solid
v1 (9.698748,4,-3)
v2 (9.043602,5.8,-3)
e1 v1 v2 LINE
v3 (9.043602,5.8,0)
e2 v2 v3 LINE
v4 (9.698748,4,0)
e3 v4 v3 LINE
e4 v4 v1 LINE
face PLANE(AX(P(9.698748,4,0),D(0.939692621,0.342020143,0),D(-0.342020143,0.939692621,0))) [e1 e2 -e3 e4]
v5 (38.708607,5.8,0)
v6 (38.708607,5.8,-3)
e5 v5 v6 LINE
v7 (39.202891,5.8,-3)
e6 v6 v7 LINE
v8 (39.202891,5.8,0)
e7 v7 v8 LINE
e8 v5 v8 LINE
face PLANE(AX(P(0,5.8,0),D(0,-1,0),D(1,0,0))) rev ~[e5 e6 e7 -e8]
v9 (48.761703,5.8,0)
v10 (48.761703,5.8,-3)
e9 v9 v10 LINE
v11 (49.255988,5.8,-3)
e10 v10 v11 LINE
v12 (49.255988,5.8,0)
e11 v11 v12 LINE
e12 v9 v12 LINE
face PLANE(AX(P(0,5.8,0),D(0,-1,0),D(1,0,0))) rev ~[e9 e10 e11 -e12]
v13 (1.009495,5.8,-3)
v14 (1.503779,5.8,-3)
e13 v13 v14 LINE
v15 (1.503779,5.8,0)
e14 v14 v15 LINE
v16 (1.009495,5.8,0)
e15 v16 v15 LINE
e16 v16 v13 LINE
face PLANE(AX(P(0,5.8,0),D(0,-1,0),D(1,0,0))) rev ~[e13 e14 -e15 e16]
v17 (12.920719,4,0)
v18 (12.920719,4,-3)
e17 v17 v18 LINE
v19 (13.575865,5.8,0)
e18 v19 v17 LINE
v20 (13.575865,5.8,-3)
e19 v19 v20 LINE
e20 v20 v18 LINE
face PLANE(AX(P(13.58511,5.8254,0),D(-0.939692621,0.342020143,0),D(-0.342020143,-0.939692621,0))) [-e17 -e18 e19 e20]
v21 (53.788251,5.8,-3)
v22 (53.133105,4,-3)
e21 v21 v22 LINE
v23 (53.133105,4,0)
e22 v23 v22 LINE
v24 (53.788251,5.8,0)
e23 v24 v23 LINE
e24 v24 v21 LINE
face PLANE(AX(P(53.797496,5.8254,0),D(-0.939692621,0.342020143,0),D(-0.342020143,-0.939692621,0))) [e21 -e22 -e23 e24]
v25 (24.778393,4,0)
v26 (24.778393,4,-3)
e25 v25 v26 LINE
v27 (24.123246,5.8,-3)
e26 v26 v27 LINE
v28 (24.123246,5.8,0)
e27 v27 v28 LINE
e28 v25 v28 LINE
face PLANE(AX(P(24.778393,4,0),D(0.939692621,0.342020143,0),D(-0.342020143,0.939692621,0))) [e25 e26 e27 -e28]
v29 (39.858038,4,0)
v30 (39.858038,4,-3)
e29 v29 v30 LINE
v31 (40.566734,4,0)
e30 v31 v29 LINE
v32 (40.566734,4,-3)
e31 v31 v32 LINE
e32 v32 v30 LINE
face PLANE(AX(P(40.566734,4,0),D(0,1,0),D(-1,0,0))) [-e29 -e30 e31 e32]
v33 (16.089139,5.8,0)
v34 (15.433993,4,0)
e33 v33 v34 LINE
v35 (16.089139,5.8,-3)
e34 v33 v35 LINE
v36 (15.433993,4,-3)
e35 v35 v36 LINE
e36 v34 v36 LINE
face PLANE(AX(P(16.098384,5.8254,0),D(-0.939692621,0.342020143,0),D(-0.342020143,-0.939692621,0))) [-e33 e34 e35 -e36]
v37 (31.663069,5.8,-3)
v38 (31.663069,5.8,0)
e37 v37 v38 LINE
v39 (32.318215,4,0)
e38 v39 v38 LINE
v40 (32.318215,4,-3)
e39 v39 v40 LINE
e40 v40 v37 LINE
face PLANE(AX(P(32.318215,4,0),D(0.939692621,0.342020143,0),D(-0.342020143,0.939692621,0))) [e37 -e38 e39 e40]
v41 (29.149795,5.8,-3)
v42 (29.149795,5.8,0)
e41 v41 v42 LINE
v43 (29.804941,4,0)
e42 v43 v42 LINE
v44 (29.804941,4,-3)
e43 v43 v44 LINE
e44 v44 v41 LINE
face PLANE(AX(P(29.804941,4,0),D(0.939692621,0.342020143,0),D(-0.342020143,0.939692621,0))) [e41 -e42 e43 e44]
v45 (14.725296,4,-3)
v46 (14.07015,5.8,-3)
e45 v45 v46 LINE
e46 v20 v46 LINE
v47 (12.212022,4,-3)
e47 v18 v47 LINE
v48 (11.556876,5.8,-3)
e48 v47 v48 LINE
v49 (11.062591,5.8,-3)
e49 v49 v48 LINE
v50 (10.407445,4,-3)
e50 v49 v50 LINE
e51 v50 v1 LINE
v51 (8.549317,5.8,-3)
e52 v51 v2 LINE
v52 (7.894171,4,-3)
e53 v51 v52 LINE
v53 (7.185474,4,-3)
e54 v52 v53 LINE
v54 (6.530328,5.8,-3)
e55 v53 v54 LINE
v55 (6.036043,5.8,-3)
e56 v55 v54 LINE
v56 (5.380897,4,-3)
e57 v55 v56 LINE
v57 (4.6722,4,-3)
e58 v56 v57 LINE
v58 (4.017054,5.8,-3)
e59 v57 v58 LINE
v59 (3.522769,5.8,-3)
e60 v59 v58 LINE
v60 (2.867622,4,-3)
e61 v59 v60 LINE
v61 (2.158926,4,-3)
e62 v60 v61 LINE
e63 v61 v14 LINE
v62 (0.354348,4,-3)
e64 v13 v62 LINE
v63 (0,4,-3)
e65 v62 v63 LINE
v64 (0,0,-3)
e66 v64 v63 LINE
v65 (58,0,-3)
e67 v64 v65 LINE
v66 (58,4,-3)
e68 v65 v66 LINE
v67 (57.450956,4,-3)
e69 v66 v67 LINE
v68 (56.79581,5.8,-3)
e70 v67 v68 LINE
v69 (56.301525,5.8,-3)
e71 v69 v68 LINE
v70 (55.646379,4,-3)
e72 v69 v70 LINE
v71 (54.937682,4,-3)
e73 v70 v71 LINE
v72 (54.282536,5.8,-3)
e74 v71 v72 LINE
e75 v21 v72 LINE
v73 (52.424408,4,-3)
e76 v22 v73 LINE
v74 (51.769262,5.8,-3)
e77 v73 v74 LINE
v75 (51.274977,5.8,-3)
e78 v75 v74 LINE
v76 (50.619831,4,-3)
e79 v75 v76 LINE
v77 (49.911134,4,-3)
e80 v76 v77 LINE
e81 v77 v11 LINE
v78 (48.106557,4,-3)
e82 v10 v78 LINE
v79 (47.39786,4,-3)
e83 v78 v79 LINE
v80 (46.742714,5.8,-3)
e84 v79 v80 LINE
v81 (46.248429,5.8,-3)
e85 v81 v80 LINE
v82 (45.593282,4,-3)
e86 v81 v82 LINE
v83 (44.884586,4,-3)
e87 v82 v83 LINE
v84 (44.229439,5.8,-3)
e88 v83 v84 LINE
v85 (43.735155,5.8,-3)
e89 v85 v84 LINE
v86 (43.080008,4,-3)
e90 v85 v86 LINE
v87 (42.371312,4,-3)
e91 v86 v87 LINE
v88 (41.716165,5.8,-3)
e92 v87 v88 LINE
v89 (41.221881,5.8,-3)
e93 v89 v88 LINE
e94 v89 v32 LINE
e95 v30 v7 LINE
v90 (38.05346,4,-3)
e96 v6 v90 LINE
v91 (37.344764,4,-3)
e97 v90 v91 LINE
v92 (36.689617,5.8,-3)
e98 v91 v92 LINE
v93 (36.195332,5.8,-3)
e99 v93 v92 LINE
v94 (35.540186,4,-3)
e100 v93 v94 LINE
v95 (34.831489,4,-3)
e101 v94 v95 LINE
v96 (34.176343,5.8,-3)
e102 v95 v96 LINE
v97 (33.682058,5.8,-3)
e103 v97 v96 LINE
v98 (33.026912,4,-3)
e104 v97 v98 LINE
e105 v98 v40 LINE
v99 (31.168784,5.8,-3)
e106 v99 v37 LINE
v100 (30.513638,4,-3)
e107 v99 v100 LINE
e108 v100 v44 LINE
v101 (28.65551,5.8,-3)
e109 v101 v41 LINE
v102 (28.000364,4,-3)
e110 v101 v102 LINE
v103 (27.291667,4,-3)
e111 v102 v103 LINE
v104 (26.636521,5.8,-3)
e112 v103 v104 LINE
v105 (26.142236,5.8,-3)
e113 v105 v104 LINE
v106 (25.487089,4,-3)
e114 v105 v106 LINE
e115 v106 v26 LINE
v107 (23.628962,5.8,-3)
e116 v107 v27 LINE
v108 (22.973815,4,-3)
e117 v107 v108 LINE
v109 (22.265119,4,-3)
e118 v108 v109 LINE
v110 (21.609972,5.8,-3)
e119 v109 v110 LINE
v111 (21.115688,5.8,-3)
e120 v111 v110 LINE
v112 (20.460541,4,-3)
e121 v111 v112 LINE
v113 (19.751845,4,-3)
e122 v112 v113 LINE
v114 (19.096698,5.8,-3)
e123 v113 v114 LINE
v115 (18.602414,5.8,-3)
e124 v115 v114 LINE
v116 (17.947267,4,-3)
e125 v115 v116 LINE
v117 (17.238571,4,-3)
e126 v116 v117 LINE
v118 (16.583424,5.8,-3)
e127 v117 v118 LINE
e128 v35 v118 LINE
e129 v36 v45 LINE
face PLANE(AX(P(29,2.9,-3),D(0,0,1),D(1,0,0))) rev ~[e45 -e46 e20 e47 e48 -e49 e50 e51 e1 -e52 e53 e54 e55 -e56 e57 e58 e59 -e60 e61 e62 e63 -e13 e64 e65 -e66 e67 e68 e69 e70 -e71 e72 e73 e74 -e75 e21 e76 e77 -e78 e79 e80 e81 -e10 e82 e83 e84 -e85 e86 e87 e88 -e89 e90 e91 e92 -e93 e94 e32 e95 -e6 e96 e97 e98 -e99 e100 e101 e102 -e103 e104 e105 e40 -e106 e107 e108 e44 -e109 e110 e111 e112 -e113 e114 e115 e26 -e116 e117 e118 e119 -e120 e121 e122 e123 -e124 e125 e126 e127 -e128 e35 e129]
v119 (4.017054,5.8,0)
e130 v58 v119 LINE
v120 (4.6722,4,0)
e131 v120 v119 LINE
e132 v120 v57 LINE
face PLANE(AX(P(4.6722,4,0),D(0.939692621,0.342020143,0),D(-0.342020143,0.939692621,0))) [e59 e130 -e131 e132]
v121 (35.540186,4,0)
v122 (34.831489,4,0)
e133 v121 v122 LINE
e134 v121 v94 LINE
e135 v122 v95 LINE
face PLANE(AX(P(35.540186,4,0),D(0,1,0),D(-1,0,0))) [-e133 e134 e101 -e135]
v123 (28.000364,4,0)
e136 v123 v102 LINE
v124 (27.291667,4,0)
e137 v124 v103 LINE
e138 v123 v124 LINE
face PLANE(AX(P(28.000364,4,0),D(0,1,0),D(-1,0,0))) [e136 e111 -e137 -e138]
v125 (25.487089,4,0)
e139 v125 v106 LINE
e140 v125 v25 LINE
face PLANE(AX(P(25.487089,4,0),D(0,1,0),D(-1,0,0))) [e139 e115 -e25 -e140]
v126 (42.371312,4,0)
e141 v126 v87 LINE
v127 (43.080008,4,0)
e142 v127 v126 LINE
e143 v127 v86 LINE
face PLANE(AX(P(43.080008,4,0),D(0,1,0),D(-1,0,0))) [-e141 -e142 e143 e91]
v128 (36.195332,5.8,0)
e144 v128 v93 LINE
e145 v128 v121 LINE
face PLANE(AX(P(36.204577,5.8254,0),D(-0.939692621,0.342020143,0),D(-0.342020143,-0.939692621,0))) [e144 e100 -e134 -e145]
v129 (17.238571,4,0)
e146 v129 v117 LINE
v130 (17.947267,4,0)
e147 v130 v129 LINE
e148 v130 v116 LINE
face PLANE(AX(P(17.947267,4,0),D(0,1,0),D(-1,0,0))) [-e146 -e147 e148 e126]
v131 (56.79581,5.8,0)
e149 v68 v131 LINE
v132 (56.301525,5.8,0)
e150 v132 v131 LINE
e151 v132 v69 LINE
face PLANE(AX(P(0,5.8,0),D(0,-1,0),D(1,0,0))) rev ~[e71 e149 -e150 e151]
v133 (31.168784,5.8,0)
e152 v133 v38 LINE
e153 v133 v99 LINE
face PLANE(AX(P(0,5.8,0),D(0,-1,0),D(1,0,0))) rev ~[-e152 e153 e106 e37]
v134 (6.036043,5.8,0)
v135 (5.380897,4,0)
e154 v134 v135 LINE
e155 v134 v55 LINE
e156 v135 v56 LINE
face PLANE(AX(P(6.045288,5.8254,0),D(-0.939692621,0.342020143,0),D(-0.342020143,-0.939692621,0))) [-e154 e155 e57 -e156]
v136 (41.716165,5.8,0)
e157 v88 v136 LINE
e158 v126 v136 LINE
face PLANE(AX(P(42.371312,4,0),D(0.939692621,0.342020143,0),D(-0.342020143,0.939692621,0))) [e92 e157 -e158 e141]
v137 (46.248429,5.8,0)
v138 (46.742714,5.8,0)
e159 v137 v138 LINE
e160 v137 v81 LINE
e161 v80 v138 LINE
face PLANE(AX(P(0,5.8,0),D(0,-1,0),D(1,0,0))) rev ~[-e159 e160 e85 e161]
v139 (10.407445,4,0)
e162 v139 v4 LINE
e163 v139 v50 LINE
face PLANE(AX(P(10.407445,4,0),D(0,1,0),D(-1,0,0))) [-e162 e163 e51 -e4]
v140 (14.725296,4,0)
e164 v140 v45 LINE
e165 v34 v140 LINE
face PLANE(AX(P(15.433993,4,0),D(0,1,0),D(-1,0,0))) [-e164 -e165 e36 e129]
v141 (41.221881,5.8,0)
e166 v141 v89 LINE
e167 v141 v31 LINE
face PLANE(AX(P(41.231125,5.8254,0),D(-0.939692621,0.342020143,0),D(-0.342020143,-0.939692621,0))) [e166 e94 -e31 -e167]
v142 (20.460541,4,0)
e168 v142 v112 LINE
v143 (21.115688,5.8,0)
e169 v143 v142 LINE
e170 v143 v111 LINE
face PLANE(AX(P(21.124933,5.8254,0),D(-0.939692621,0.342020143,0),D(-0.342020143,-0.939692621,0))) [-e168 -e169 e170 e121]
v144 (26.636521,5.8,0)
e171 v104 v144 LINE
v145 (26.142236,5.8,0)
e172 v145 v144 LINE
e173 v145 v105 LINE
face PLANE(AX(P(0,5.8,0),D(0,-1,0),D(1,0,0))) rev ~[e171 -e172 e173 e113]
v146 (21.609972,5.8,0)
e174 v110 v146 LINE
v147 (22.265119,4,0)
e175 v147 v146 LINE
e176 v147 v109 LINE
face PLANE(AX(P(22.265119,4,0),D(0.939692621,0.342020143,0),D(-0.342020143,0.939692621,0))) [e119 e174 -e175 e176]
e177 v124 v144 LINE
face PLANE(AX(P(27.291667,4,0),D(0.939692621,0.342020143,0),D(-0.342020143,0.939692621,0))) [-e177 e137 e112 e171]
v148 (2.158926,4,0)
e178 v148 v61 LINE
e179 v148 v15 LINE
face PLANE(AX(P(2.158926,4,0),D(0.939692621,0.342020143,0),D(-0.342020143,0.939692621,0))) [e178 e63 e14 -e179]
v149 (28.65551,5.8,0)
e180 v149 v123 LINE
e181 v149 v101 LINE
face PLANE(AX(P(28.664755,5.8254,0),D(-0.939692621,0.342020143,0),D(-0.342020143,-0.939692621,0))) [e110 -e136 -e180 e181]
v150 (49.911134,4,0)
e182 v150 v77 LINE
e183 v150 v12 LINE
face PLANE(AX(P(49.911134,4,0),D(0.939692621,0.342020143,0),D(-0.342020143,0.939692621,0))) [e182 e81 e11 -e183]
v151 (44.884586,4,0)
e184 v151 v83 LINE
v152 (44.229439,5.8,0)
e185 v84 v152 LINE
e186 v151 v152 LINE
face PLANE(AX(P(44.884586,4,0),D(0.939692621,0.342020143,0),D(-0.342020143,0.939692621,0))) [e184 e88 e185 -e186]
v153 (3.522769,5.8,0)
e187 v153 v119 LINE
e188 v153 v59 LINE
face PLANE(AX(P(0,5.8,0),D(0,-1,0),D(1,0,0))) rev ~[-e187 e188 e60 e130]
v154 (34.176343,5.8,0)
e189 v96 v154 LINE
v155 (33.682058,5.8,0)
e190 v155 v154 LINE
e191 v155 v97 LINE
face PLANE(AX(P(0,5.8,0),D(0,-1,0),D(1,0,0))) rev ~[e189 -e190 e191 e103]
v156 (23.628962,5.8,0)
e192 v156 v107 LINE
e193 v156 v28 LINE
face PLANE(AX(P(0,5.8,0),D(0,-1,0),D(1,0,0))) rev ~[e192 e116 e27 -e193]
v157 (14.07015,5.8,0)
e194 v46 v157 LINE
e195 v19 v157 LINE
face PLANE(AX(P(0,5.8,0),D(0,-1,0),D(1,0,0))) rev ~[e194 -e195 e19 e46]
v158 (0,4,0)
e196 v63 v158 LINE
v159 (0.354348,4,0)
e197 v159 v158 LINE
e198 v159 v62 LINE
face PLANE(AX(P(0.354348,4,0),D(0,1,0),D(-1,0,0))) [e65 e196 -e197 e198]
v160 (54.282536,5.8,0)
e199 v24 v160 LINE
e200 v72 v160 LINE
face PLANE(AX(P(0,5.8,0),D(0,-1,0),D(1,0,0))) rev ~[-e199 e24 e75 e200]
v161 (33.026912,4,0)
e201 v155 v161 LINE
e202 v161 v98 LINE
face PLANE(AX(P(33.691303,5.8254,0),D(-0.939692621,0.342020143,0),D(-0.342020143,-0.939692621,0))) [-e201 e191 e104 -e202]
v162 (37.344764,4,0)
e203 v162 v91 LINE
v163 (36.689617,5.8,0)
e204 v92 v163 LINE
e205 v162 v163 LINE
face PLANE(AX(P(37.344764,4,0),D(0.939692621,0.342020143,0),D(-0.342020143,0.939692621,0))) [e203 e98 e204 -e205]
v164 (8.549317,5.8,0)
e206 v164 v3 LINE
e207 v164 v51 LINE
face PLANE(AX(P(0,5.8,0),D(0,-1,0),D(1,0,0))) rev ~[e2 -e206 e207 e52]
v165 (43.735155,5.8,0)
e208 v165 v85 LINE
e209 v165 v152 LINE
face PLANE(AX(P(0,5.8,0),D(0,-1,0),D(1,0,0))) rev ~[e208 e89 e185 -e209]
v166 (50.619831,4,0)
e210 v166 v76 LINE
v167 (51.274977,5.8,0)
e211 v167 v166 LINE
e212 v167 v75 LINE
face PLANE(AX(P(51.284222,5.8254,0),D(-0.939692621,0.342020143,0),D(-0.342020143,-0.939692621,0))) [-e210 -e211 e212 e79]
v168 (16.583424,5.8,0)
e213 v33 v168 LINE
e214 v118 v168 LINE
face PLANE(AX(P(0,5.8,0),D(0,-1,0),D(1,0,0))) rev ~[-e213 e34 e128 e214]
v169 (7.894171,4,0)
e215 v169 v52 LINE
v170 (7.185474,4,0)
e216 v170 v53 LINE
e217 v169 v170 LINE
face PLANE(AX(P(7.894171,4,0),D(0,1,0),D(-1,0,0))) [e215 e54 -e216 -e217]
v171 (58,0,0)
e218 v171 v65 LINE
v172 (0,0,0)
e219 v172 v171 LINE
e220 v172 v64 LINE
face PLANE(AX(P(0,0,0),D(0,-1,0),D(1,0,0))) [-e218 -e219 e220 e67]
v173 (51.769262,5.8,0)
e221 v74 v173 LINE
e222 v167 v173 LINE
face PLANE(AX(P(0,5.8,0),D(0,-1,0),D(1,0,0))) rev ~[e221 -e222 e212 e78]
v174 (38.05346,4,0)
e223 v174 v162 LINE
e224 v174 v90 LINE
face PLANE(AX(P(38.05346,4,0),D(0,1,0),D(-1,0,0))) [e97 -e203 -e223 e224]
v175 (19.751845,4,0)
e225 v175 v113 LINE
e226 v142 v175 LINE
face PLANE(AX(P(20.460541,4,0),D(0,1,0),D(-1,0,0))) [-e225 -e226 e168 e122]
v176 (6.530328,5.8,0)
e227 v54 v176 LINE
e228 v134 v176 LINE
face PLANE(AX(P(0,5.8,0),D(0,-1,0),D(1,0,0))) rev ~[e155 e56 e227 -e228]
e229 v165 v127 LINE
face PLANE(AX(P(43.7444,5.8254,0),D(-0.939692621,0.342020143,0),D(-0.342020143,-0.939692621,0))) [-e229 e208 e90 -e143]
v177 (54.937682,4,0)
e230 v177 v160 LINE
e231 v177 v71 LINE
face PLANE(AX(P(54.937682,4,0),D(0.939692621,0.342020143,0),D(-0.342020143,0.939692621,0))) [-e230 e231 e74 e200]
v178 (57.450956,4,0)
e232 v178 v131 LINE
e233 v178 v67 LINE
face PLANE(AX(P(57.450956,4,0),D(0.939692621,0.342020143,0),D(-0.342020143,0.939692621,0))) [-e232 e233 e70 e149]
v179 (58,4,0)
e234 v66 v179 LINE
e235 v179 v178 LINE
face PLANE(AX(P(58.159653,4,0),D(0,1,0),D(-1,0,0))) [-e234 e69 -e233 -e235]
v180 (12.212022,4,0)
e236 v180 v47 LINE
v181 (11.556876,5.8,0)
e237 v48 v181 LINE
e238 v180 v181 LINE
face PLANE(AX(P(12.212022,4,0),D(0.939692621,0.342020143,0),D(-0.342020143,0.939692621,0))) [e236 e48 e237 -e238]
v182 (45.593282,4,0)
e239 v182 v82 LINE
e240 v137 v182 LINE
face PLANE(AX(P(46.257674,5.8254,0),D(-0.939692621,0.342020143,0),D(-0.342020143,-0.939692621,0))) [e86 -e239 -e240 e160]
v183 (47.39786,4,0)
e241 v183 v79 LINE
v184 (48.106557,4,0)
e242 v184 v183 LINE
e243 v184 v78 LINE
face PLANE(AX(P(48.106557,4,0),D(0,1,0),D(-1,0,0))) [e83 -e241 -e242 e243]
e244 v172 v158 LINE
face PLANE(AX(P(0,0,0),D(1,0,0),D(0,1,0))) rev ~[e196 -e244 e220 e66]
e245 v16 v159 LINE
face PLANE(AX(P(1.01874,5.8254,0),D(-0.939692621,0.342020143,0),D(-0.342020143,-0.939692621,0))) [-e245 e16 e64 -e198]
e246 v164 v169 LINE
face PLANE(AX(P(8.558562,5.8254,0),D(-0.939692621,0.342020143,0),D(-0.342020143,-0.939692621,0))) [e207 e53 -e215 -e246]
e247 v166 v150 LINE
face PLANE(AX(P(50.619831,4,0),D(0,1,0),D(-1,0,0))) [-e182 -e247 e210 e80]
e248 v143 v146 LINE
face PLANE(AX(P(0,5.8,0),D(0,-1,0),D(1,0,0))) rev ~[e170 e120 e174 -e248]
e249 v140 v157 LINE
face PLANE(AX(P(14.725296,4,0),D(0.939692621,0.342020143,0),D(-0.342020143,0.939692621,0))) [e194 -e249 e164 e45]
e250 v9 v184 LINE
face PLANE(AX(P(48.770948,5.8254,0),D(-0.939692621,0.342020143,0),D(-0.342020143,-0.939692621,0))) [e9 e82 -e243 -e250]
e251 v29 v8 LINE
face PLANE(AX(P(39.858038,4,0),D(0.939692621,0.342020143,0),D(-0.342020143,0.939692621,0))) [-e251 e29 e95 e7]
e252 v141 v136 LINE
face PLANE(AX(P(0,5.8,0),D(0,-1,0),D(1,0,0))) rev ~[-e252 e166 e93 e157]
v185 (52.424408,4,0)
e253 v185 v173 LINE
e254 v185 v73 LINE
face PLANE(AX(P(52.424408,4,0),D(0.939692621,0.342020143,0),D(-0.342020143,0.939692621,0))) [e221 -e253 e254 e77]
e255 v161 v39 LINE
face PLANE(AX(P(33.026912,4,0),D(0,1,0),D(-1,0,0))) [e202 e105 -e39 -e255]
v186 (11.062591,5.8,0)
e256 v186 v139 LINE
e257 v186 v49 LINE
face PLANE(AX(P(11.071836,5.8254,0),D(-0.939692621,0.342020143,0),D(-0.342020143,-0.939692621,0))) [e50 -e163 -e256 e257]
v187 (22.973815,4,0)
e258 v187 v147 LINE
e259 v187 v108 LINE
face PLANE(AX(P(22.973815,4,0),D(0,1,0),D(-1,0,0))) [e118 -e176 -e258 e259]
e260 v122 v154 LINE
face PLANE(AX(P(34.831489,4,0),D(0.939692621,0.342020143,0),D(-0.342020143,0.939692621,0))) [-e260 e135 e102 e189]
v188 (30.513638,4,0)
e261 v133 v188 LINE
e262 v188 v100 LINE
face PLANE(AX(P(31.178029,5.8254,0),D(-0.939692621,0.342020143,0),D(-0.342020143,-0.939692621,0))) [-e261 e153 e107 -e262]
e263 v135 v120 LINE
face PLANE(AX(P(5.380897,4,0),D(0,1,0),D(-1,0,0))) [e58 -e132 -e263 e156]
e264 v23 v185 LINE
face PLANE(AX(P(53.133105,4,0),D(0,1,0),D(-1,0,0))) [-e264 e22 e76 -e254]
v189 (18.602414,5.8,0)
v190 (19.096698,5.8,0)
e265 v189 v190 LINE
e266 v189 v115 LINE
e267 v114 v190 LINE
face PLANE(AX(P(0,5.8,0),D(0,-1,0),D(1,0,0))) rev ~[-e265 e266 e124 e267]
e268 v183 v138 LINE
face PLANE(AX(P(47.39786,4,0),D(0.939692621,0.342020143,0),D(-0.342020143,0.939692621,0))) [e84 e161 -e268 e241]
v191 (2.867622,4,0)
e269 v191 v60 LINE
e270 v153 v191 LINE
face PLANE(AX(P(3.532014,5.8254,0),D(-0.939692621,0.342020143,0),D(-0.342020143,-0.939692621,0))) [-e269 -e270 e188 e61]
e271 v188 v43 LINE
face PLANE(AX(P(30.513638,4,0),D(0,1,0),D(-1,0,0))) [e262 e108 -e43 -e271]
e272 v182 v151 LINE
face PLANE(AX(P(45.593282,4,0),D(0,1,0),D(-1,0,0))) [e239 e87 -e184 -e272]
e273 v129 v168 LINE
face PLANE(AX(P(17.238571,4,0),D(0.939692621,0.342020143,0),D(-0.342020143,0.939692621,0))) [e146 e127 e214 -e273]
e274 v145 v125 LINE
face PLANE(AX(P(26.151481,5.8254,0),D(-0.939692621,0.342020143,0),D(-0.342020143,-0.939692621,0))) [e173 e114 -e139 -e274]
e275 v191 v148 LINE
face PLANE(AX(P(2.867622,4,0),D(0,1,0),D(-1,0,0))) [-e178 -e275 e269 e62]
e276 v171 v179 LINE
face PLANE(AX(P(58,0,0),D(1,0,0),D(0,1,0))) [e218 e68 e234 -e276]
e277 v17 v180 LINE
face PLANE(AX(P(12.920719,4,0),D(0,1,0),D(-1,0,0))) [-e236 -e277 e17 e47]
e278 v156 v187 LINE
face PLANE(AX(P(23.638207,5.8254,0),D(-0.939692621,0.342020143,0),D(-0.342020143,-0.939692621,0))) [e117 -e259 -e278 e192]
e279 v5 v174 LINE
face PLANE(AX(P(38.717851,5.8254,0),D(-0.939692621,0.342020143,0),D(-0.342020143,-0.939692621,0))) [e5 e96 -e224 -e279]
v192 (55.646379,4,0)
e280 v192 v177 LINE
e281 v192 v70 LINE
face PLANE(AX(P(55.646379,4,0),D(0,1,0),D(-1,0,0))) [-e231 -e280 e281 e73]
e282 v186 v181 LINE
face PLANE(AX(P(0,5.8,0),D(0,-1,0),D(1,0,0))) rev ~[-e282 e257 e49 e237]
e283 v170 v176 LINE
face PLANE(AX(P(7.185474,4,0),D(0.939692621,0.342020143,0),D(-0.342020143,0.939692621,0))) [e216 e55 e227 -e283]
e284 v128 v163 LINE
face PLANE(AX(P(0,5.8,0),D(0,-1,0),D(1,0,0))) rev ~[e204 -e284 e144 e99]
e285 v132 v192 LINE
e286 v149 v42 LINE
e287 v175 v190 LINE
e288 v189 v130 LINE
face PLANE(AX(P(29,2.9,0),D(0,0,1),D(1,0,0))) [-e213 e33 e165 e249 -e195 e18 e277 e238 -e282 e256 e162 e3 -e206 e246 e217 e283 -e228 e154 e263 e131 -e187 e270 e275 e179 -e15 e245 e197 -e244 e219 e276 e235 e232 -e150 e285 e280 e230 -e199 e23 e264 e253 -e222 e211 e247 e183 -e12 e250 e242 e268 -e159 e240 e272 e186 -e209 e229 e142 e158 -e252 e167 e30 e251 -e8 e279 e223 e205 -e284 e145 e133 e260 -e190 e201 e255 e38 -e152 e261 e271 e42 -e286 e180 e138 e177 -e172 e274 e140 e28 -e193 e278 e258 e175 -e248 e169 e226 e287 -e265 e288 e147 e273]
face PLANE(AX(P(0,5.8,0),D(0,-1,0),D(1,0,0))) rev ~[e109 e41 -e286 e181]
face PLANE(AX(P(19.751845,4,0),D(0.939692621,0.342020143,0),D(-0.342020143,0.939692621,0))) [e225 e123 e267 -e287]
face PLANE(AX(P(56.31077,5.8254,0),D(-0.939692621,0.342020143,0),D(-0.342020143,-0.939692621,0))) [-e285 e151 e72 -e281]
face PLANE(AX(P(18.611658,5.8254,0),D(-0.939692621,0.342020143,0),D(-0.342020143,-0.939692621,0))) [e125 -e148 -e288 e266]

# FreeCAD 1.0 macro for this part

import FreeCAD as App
import Part
import Sketcher
from FreeCAD import Vector
Q = App.Units.Quantity


def add_polygon(sketch, points):
    """Adds a closed chain of lines whose ends are joined by coincident constraints."""
    first, n = sketch.GeometryCount, len(points)
    for a, b in zip(points, points[1:] + points[:1]):
        sketch.addGeometry(Part.LineSegment(App.Vector(*a, 0), App.Vector(*b, 0)), False)
    for i in range(n):
        sketch.addConstraint(Sketcher.Constraint("Coincident", first + i, 2, first + (i + 1) % n, 1))

doc = App.newDocument("Part")
params = doc.addObject("Spreadsheet::Sheet", "Params")
for row, (alias, value) in enumerate([
    ("sketch1_width", "58 mm"),
    ("sketch1_height", "5.8 mm"),
    ("pad1_length", "3 mm"),
    ("linearpattern_pitch", "2.513274 mm"),
], start=1):
    params.set(f"A{row}", alias)
    params.set(f"B{row}", "=" + value)
    params.setAlias(f"B{row}", alias)

body = doc.addObject("PartDesign::Body", "Body")

# Sketch on XY plane
sketch1 = doc.addObject("Sketcher::SketchObject", "Sketch")
body.addObject(sketch1)
sketch1.AttachmentSupport = (doc.XY_Plane, [""])
sketch1.MapMode = "FlatFace"
add_polygon(sketch1, [(0, 5.8), (0, 0), (58, 0), (58, 5.8)])  # lines 0-3
sketch1.addConstraint([
    Sketcher.Constraint("Vertical", 0),
    Sketcher.Constraint("Horizontal", 1),
    Sketcher.Constraint("Vertical", 2),
    Sketcher.Constraint("Horizontal", 3),
    Sketcher.Constraint("Coincident", 0, 2, -1, 1),
    Sketcher.Constraint("DistanceX", 1, 1, 1, 2, Q("58 mm")),
    Sketcher.Constraint("DistanceY", 0, 2, 0, 1, Q("5.8 mm")),
])
sketch1.setExpression("Constraints[9]", "Params.sketch1_width")
sketch1.setExpression("Constraints[10]", "Params.sketch1_height")
pad1 = doc.addObject("PartDesign::Pad", "Pad")
body.addObject(pad1)
pad1.Profile = sketch1
pad1.setExpression("Length", "Params.pad1_length")
pad1.Reversed = True

# Sketch on XY plane
sketch2 = doc.addObject("Sketcher::SketchObject", "Sketch001")
body.addObject(sketch2)
sketch2.AttachmentSupport = (doc.XY_Plane, [""])
sketch2.MapMode = "FlatFace"
add_polygon(sketch2, [(-0.354348, 4), (0.354348, 4), (1.01874, 5.8254), (-1.01874, 5.8254)])  # lines 0-3
sketch2.addConstraint([
    Sketcher.Constraint("Horizontal", 0),
    Sketcher.Constraint("Horizontal", 2),
    Sketcher.Constraint("Equal", 1, 3),
    Sketcher.Constraint("Angle", 1, Q("70 deg")),
    Sketcher.Constraint("DistanceY", -1, 1, 0, 2, Q("4 mm")),
    Sketcher.Constraint("DistanceX", 2, 2, 2, 1, Q("2.037479 mm")),
    Sketcher.Constraint("DistanceY", -1, 1, 1, 2, Q("5.8254 mm")),
    Sketcher.Constraint("DistanceX", -1, 1, 0, 2, Q("0.354348 mm")),
])
pocket1 = doc.addObject("PartDesign::Pocket", "Pocket")
body.addObject(pocket1)
pocket1.Profile = sketch2
pocket1.Type = "ThroughAll"
doc.recompute()

linearpattern = doc.addObject("PartDesign::LinearPattern", "LinearPattern")
body.addObject(linearpattern)
linearpattern.Originals = [pocket1]
linearpattern.Direction = (doc.X_Axis, [""])
linearpattern.Mode = "offset"
linearpattern.setExpression("Offset", "Params.linearpattern_pitch")
linearpattern.Occurrences = 24
body.Tip = linearpattern

doc.recompute()
